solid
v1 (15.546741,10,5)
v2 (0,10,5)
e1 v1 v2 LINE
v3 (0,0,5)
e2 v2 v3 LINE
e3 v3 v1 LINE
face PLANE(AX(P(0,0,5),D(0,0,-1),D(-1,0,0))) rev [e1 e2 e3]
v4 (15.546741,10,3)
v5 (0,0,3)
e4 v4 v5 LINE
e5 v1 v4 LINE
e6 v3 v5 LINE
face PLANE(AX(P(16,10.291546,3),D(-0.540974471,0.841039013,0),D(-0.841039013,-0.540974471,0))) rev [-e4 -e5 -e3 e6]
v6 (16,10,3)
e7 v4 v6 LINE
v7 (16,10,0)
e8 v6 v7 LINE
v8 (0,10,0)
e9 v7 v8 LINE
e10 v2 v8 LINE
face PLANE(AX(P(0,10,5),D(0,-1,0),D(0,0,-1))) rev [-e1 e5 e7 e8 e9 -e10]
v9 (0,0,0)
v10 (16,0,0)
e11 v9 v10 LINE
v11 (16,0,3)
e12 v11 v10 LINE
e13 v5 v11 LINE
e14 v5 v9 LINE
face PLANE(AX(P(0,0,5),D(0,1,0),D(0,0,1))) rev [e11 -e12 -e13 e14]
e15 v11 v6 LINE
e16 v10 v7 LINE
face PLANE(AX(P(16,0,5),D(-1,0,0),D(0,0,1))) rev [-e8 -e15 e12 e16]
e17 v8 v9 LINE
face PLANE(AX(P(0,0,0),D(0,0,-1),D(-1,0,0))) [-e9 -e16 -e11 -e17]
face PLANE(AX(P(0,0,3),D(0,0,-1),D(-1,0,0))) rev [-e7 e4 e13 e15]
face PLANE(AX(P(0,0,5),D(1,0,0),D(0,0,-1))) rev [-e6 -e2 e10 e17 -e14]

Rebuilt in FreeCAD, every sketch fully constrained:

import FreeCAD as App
import Part
import Sketcher

V = App.Vector
Q = App.Units.Quantity

doc = App.newDocument("Part")
body = doc.addObject("PartDesign::Body", "Body")

# Sketch on XY plane
sketch1 = body.newObject("Sketcher::SketchObject", "Sketch")
sketch1.AttachmentSupport = (doc.getObject("XY_Plane"), [""])
sketch1.MapMode = "FlatFace"
sketch1.addGeometry(Part.LineSegment(V(0, 10, 0), V(0, 0, 0)), False)
sketch1.addGeometry(Part.LineSegment(V(0, 0, 0), V(16, 0, 0)), False)
sketch1.addGeometry(Part.LineSegment(V(16, 0, 0), V(16, 10, 0)), False)
sketch1.addGeometry(Part.LineSegment(V(16, 10, 0), V(0, 10, 0)), False)
sketch1.addConstraint(Sketcher.Constraint("Coincident", 0, 2, 1, 1))
sketch1.addConstraint(Sketcher.Constraint("Coincident", 1, 2, 2, 1))
sketch1.addConstraint(Sketcher.Constraint("Coincident", 2, 2, 3, 1))
sketch1.addConstraint(Sketcher.Constraint("Coincident", 3, 2, 0, 1))
sketch1.addConstraint(Sketcher.Constraint("Vertical", 0))
sketch1.addConstraint(Sketcher.Constraint("Horizontal", 1))
sketch1.addConstraint(Sketcher.Constraint("Vertical", 2))
sketch1.addConstraint(Sketcher.Constraint("Horizontal", 3))
sketch1.addConstraint(Sketcher.Constraint("Coincident", 0, 2, -1, 1))
sketch1.addConstraint(Sketcher.Constraint("DistanceX", 1, 1, 1, 2, Q("16 mm")))
sketch1.addConstraint(Sketcher.Constraint("DistanceY", 0, 2, 0, 1, Q("10 mm")))
pad1 = body.newObject("PartDesign::Pad", "Pad")
pad1.Profile = sketch1
pad1.Length = 5

# Sketch on XY plane
sketch2 = body.newObject("Sketcher::SketchObject", "Sketch001")
sketch2.AttachmentSupport = (doc.getObject("XY_Plane"), [""])
sketch2.MapMode = "FlatFace"
sketch2.AttachmentOffset = App.Placement(V(0, 0, 5), App.Rotation())
sketch2.addGeometry(Part.LineSegment(V(0, 0, 0), V(16, 0, 0)), False)
sketch2.addGeometry(Part.LineSegment(V(16, 0, 0), V(16, 10, 0)), False)
sketch2.addGeometry(Part.LineSegment(V(16, 10, 0), V(0, 0, 0)), False)
sketch2.addConstraint(Sketcher.Constraint("Coincident", 0, 2, 1, 1))
sketch2.addConstraint(Sketcher.Constraint("Coincident", 1, 2, 2, 1))
sketch2.addConstraint(Sketcher.Constraint("Coincident", 2, 2, 0, 1))
sketch2.addConstraint(Sketcher.Constraint("Horizontal", 0))
sketch2.addConstraint(Sketcher.Constraint("Vertical", 1))
sketch2.addConstraint(Sketcher.Constraint("Coincident", 2, 2, -1, 1))
sketch2.addConstraint(Sketcher.Constraint("DistanceX", 0, 1, 0, 2, Q("16 mm")))
sketch2.addConstraint(Sketcher.Constraint("Angle", 2, Q("-147.25 deg")))
pocket1 = body.newObject("PartDesign::Pocket", "Pocket")
pocket1.Profile = sketch2
pocket1.Length = 2

doc.recompute()
